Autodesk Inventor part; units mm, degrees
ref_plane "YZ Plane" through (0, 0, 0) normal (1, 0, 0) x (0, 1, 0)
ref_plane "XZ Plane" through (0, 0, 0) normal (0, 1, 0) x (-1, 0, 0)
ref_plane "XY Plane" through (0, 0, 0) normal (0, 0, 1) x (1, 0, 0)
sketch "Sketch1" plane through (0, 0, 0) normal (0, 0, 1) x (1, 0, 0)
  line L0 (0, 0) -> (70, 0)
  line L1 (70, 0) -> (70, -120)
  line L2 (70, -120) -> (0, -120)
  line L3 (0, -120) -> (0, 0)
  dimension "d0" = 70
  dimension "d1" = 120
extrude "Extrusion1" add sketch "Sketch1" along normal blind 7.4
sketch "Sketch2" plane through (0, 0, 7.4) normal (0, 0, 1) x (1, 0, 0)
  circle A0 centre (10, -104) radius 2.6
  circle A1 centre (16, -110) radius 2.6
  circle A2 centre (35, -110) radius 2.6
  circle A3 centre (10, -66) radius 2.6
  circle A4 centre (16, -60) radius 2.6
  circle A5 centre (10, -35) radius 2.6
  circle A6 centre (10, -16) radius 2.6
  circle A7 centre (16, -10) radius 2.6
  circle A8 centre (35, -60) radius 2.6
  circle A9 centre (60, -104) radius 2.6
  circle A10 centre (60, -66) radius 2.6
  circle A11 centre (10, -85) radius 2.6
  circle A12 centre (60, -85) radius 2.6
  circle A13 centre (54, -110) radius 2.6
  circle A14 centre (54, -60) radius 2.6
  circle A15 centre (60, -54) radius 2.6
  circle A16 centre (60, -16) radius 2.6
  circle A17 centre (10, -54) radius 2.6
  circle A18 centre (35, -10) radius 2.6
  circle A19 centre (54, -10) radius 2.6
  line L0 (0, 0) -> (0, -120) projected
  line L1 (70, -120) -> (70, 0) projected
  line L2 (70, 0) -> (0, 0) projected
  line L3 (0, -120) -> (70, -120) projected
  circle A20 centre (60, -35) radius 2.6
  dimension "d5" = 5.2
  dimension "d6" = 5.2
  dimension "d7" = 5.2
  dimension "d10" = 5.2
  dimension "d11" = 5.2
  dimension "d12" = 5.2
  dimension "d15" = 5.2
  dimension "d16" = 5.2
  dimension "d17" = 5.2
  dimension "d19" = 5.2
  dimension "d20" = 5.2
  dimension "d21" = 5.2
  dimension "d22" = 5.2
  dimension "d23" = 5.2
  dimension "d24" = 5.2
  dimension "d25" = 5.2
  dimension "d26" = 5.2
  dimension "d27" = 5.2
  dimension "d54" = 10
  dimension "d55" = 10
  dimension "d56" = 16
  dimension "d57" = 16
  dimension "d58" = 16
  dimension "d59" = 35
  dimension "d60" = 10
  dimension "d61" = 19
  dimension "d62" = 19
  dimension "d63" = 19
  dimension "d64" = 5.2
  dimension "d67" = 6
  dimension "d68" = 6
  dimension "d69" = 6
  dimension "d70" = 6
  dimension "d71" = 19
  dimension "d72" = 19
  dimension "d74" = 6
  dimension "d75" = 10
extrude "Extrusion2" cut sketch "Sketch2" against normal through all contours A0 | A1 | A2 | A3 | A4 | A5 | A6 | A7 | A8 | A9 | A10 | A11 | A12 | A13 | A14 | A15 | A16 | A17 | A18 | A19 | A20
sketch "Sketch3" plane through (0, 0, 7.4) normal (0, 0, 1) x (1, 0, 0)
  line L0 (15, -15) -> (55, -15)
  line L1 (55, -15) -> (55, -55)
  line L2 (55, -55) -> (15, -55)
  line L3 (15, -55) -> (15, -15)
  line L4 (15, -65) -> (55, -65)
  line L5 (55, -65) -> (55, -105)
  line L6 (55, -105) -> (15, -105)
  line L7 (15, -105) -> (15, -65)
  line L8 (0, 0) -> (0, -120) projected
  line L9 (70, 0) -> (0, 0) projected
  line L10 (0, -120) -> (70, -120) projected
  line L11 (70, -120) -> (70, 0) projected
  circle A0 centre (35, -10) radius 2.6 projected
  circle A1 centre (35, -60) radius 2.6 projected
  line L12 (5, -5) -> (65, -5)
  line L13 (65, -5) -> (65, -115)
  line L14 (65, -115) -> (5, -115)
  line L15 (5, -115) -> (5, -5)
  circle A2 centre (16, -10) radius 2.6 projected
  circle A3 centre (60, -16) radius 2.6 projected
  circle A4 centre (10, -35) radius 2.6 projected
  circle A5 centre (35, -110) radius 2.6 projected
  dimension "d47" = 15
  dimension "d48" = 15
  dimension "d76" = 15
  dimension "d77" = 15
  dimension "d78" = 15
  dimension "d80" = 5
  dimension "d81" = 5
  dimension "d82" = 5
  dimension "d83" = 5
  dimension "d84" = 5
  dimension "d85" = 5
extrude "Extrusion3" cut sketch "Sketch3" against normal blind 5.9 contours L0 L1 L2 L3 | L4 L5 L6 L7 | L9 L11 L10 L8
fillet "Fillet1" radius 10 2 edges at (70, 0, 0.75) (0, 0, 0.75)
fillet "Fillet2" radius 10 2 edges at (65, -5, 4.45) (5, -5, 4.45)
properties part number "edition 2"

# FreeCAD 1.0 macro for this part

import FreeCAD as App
import Part
import Sketcher
from FreeCAD import Vector


def edges_at(feature, points):
    """Names of the edges that pass closest to the given points."""
    edges = feature.Shape.Edges
    near = lambda p: min(range(len(edges)), key=lambda i: edges[i].distToShape(Part.Vertex(*p))[0])
    return sorted({f"Edge{near(p) + 1}" for p in points})

doc = App.newDocument("Part")
params = doc.addObject("Spreadsheet::Sheet", "Params")
for row, (alias, value) in enumerate([
    ("sketch1_width", "70 mm"),
    ("sketch1_height", "120 mm"),
    ("pad1_length", "7.4 mm"),
    ("sketch2_diameter", "5.2 mm"),
    ("sketch3_width", "40 mm"),
    ("sketch3_height", "120 mm"),
    ("pocket2_length", "5.9 mm"),
    ("fillet_radius", "10 mm"),
    ("fillet2_radius", "10 mm"),
], start=1):
    params.set(f"A{row}", alias)
    params.set(f"B{row}", "=" + value)
    params.setAlias(f"B{row}", alias)

body = doc.addObject("PartDesign::Body", "Body")

sketch1 = body.newObject("Sketcher::SketchObject", "Sketch")
sketch1.AttachmentSupport = (doc.getObject("XY_Plane"), [""])
sketch1.MapMode = "FlatFace"
sketch1.addGeometry(Part.LineSegment(Vector(70, 0, 0), Vector(0, 0, 0)), False)
sketch1.addGeometry(Part.LineSegment(Vector(0, 0, 0), Vector(0, -120, 0)), False)
sketch1.addGeometry(Part.LineSegment(Vector(0, -120, 0), Vector(70, -120, 0)), False)
sketch1.addGeometry(Part.LineSegment(Vector(70, -120, 0), Vector(70, 0, 0)), False)
sketch1.addConstraint(Sketcher.Constraint("Coincident", 0, 2, 1, 1))
sketch1.addConstraint(Sketcher.Constraint("Coincident", 1, 2, 2, 1))
sketch1.addConstraint(Sketcher.Constraint("Coincident", 2, 2, 3, 1))
sketch1.addConstraint(Sketcher.Constraint("Coincident", 3, 2, 0, 1))
sketch1.addConstraint(Sketcher.Constraint("Horizontal", 0))
sketch1.addConstraint(Sketcher.Constraint("Vertical", 1))
sketch1.addConstraint(Sketcher.Constraint("Horizontal", 2))
sketch1.addConstraint(Sketcher.Constraint("Vertical", 3))
sketch1.addConstraint(Sketcher.Constraint("Coincident", 0, 2, -1, 1))
sketch1.addConstraint(Sketcher.Constraint("DistanceX", 0, 2, 0, 1, 70.0))
sketch1.addConstraint(Sketcher.Constraint("DistanceY", 1, 2, 1, 1, 120.0))
sketch1.setExpression("Constraints[9]", "Params.sketch1_width")
sketch1.setExpression("Constraints[10]", "Params.sketch1_height")
pad1 = body.newObject("PartDesign::Pad", "Pad")
pad1.Profile = sketch1
pad1.setExpression("Length", "Params.pad1_length")

sketch2 = body.newObject("Sketcher::SketchObject", "Sketch001")
sketch2.AttachmentSupport = (doc.getObject("XY_Plane"), [""])
sketch2.MapMode = "FlatFace"
sketch2.AttachmentOffset = App.Placement(Vector(0, 0, 7.4), App.Rotation())
sketch2.addGeometry(Part.Circle(Vector(10, -104, 0), Vector(0, 0, 1), 2.6), False)
sketch2.addGeometry(Part.Circle(Vector(16, -110, 0), Vector(0, 0, 1), 2.6), False)
sketch2.addGeometry(Part.Circle(Vector(35, -110, 0), Vector(0, 0, 1), 2.6), False)
sketch2.addGeometry(Part.Circle(Vector(10, -66, 0), Vector(0, 0, 1), 2.6), False)
sketch2.addGeometry(Part.Circle(Vector(16, -60, 0), Vector(0, 0, 1), 2.6), False)
sketch2.addGeometry(Part.Circle(Vector(10, -35, 0), Vector(0, 0, 1), 2.6), False)
sketch2.addGeometry(Part.Circle(Vector(10, -16, 0), Vector(0, 0, 1), 2.6), False)
sketch2.addGeometry(Part.Circle(Vector(16, -10, 0), Vector(0, 0, 1), 2.6), False)
sketch2.addGeometry(Part.Circle(Vector(35, -60, 0), Vector(0, 0, 1), 2.6), False)
sketch2.addGeometry(Part.Circle(Vector(60, -104, 0), Vector(0, 0, 1), 2.6), False)
sketch2.addGeometry(Part.Circle(Vector(60, -66, 0), Vector(0, 0, 1), 2.6), False)
sketch2.addGeometry(Part.Circle(Vector(10, -85, 0), Vector(0, 0, 1), 2.6), False)
sketch2.addGeometry(Part.Circle(Vector(60, -85, 0), Vector(0, 0, 1), 2.6), False)
sketch2.addGeometry(Part.Circle(Vector(54, -110, 0), Vector(0, 0, 1), 2.6), False)
sketch2.addGeometry(Part.Circle(Vector(54, -60, 0), Vector(0, 0, 1), 2.6), False)
sketch2.addGeometry(Part.Circle(Vector(60, -54, 0), Vector(0, 0, 1), 2.6), False)
sketch2.addGeometry(Part.Circle(Vector(60, -16, 0), Vector(0, 0, 1), 2.6), False)
sketch2.addGeometry(Part.Circle(Vector(10, -54, 0), Vector(0, 0, 1), 2.6), False)
sketch2.addGeometry(Part.Circle(Vector(35, -10, 0), Vector(0, 0, 1), 2.6), False)
sketch2.addGeometry(Part.Circle(Vector(54, -10, 0), Vector(0, 0, 1), 2.6), False)
sketch2.addGeometry(Part.Circle(Vector(60, -35, 0), Vector(0, 0, 1), 2.6), False)
sketch2.addConstraint(Sketcher.Constraint("Equal", 0, 1))
sketch2.addConstraint(Sketcher.Constraint("Equal", 1, 2))
sketch2.addConstraint(Sketcher.Constraint("Equal", 2, 3))
sketch2.addConstraint(Sketcher.Constraint("Equal", 3, 4))
sketch2.addConstraint(Sketcher.Constraint("Equal", 4, 5))
sketch2.addConstraint(Sketcher.Constraint("Equal", 5, 6))
sketch2.addConstraint(Sketcher.Constraint("Equal", 6, 7))
sketch2.addConstraint(Sketcher.Constraint("Equal", 7, 8))
sketch2.addConstraint(Sketcher.Constraint("Equal", 8, 9))
sketch2.addConstraint(Sketcher.Constraint("Equal", 9, 10))
sketch2.addConstraint(Sketcher.Constraint("Equal", 10, 11))
sketch2.addConstraint(Sketcher.Constraint("Equal", 11, 12))
sketch2.addConstraint(Sketcher.Constraint("Equal", 12, 13))
sketch2.addConstraint(Sketcher.Constraint("Equal", 13, 14))
sketch2.addConstraint(Sketcher.Constraint("Equal", 14, 15))
sketch2.addConstraint(Sketcher.Constraint("Equal", 15, 16))
sketch2.addConstraint(Sketcher.Constraint("Equal", 16, 17))
sketch2.addConstraint(Sketcher.Constraint("Equal", 17, 18))
sketch2.addConstraint(Sketcher.Constraint("Equal", 18, 19))
sketch2.addConstraint(Sketcher.Constraint("Equal", 19, 20))
sketch2.addConstraint(Sketcher.Constraint("Horizontal", 1, 3, 2, 3))
sketch2.addConstraint(Sketcher.Constraint("Horizontal", 4, 3, 8, 3))
sketch2.addConstraint(Sketcher.Constraint("Horizontal", 0, 3, 9, 3))
sketch2.addConstraint(Sketcher.Constraint("Horizontal", 3, 3, 10, 3))
sketch2.addConstraint(Sketcher.Constraint("Horizontal", 11, 3, 12, 3))
sketch2.addConstraint(Sketcher.Constraint("Horizontal", 2, 3, 13, 3))
sketch2.addConstraint(Sketcher.Constraint("Horizontal", 8, 3, 14, 3))
sketch2.addConstraint(Sketcher.Constraint("Horizontal", 6, 3, 16, 3))
sketch2.addConstraint(Sketcher.Constraint("Horizontal", 15, 3, 17, 3))
sketch2.addConstraint(Sketcher.Constraint("Horizontal", 7, 3, 18, 3))
sketch2.addConstraint(Sketcher.Constraint("Horizontal", 18, 3, 19, 3))
sketch2.addConstraint(Sketcher.Constraint("Horizontal", 5, 3, 20, 3))
sketch2.addConstraint(Sketcher.Constraint("Vertical", 0, 3, 3, 3))
sketch2.addConstraint(Sketcher.Constraint("Vertical", 1, 3, 4, 3))
sketch2.addConstraint(Sketcher.Constraint("Vertical", 3, 3, 5, 3))
sketch2.addConstraint(Sketcher.Constraint("Vertical", 5, 3, 6, 3))
sketch2.addConstraint(Sketcher.Constraint("Vertical", 4, 3, 7, 3))
sketch2.addConstraint(Sketcher.Constraint("Vertical", 2, 3, 8, 3))
sketch2.addConstraint(Sketcher.Constraint("Vertical", 9, 3, 10, 3))
sketch2.addConstraint(Sketcher.Constraint("Vertical", 6, 3, 11, 3))
sketch2.addConstraint(Sketcher.Constraint("Vertical", 10, 3, 12, 3))
sketch2.addConstraint(Sketcher.Constraint("Vertical", 13, 3, 14, 3))
sketch2.addConstraint(Sketcher.Constraint("Vertical", 12, 3, 15, 3))
sketch2.addConstraint(Sketcher.Constraint("Vertical", 15, 3, 16, 3))
sketch2.addConstraint(Sketcher.Constraint("Vertical", 11, 3, 17, 3))
sketch2.addConstraint(Sketcher.Constraint("Vertical", 8, 3, 18, 3))
sketch2.addConstraint(Sketcher.Constraint("Vertical", 14, 3, 19, 3))
sketch2.addConstraint(Sketcher.Constraint("Vertical", 16, 3, 20, 3))
sketch2.addConstraint(Sketcher.Constraint("Diameter", 0, 5.2))
sketch2.addConstraint(Sketcher.Constraint("DistanceX", -1, 1, 0, 3, 10.0))
sketch2.addConstraint(Sketcher.Constraint("DistanceX", -1, 1, 1, 3, 16.0))
sketch2.addConstraint(Sketcher.Constraint("DistanceX", -1, 1, 2, 3, 35.0))
sketch2.addConstraint(Sketcher.Constraint("DistanceY", 5, 3, -1, 1, 35.0))
sketch2.addConstraint(Sketcher.Constraint("DistanceY", 6, 3, -1, 1, 16.0))
sketch2.addConstraint(Sketcher.Constraint("DistanceY", 7, 3, -1, 1, 10.0))
sketch2.addConstraint(Sketcher.Constraint("DistanceY", 1, 3, 0, 3, 6.0))
sketch2.addConstraint(Sketcher.Constraint("DistanceY", 3, 3, 4, 3, 6.0))
sketch2.addConstraint(Sketcher.Constraint("DistanceY", 0, 3, 11, 3, 19.0))
sketch2.addConstraint(Sketcher.Constraint("DistanceY", 11, 3, 3, 3, 19.0))
sketch2.addConstraint(Sketcher.Constraint("DistanceX", 13, 3, 9, 3, 6.0))
sketch2.addConstraint(Sketcher.Constraint("DistanceX", 2, 3, 13, 3, 19.0))
sketch2.addConstraint(Sketcher.Constraint("DistanceY", 14, 3, 15, 3, 6.0))
sketch2.addConstraint(Sketcher.Constraint("DistanceY", 17, 3, 5, 3, 19.0))
sketch2.setExpression("Constraints[48]", "Params.sketch2_diameter")
pocket1 = body.newObject("PartDesign::Pocket", "Pocket")
pocket1.Profile = sketch2
pocket1.Type = "ThroughAll"

sketch3 = body.newObject("Sketcher::SketchObject", "Sketch002")
sketch3.AttachmentSupport = (doc.getObject("XY_Plane"), [""])
sketch3.MapMode = "FlatFace"
sketch3.AttachmentOffset = App.Placement(Vector(0, 0, 7.4), App.Rotation())
sketch3.addGeometry(Part.LineSegment(Vector(55, -15, 0), Vector(15, -15, 0)), False)
sketch3.addGeometry(Part.LineSegment(Vector(15, -15, 0), Vector(15, -55, 0)), False)
sketch3.addGeometry(Part.LineSegment(Vector(15, -55, 0), Vector(55, -55, 0)), False)
sketch3.addGeometry(Part.LineSegment(Vector(55, -55, 0), Vector(55, -15, 0)), False)
sketch3.addGeometry(Part.LineSegment(Vector(55, -65, 0), Vector(15, -65, 0)), False)
sketch3.addGeometry(Part.LineSegment(Vector(15, -65, 0), Vector(15, -105, 0)), False)
sketch3.addGeometry(Part.LineSegment(Vector(15, -105, 0), Vector(55, -105, 0)), False)
sketch3.addGeometry(Part.LineSegment(Vector(55, -105, 0), Vector(55, -65, 0)), False)
sketch3.addGeometry(Part.LineSegment(Vector(70, 0, 0), Vector(0, 0, 0)), False)
sketch3.addGeometry(Part.LineSegment(Vector(0, 0, 0), Vector(0, -120, 0)), False)
sketch3.addGeometry(Part.LineSegment(Vector(0, -120, 0), Vector(70, -120, 0)), False)
sketch3.addGeometry(Part.LineSegment(Vector(70, -120, 0), Vector(70, 0, 0)), False)
sketch3.addGeometry(Part.LineSegment(Vector(5, -115, 0), Vector(5, -5, 0)), False)
sketch3.addGeometry(Part.LineSegment(Vector(5, -5, 0), Vector(65, -5, 0)), False)
sketch3.addGeometry(Part.LineSegment(Vector(65, -5, 0), Vector(65, -115, 0)), False)
sketch3.addGeometry(Part.LineSegment(Vector(65, -115, 0), Vector(5, -115, 0)), False)
sketch3.addConstraint(Sketcher.Constraint("Coincident", 0, 2, 1, 1))
sketch3.addConstraint(Sketcher.Constraint("Coincident", 1, 2, 2, 1))
sketch3.addConstraint(Sketcher.Constraint("Coincident", 2, 2, 3, 1))
sketch3.addConstraint(Sketcher.Constraint("Coincident", 3, 2, 0, 1))
sketch3.addConstraint(Sketcher.Constraint("Coincident", 4, 2, 5, 1))
sketch3.addConstraint(Sketcher.Constraint("Coincident", 5, 2, 6, 1))
sketch3.addConstraint(Sketcher.Constraint("Coincident", 6, 2, 7, 1))
sketch3.addConstraint(Sketcher.Constraint("Coincident", 7, 2, 4, 1))
sketch3.addConstraint(Sketcher.Constraint("Coincident", 8, 2, 9, 1))
sketch3.addConstraint(Sketcher.Constraint("Coincident", 9, 2, 10, 1))
sketch3.addConstraint(Sketcher.Constraint("Coincident", 10, 2, 11, 1))
sketch3.addConstraint(Sketcher.Constraint("Coincident", 11, 2, 8, 1))
sketch3.addConstraint(Sketcher.Constraint("Coincident", 12, 2, 13, 1))
sketch3.addConstraint(Sketcher.Constraint("Coincident", 13, 2, 14, 1))
sketch3.addConstraint(Sketcher.Constraint("Coincident", 14, 2, 15, 1))
sketch3.addConstraint(Sketcher.Constraint("Coincident", 15, 2, 12, 1))
sketch3.addConstraint(Sketcher.Constraint("Horizontal", 0))
sketch3.addConstraint(Sketcher.Constraint("Vertical", 1))
sketch3.addConstraint(Sketcher.Constraint("Horizontal", 2))
sketch3.addConstraint(Sketcher.Constraint("Vertical", 3))
sketch3.addConstraint(Sketcher.Constraint("Horizontal", 4))
sketch3.addConstraint(Sketcher.Constraint("Vertical", 5))
sketch3.addConstraint(Sketcher.Constraint("Horizontal", 6))
sketch3.addConstraint(Sketcher.Constraint("Vertical", 7))
sketch3.addConstraint(Sketcher.Constraint("Horizontal", 8))
sketch3.addConstraint(Sketcher.Constraint("Vertical", 9))
sketch3.addConstraint(Sketcher.Constraint("Horizontal", 10))
sketch3.addConstraint(Sketcher.Constraint("Vertical", 11))
sketch3.addConstraint(Sketcher.Constraint("Vertical", 12))
sketch3.addConstraint(Sketcher.Constraint("Horizontal", 13))
sketch3.addConstraint(Sketcher.Constraint("Vertical", 14))
sketch3.addConstraint(Sketcher.Constraint("Horizontal", 15))
sketch3.addConstraint(Sketcher.Constraint("Coincident", 8, 2, -1, 1))
sketch3.addConstraint(Sketcher.Constraint("Vertical", 1, 2, 4, 2))
sketch3.addConstraint(Sketcher.Constraint("Vertical", 3, 2, 6, 2))
sketch3.addConstraint(Sketcher.Constraint("Equal", 6, 1))
sketch3.addConstraint(Sketcher.Constraint("Equal", 3, 5))
sketch3.addConstraint(Sketcher.Constraint("DistanceX", -1, 1, 0, 2, 15.0))
sketch3.addConstraint(Sketcher.Constraint("DistanceY", 0, 2, -1, 1, 15.0))
sketch3.addConstraint(Sketcher.Constraint("DistanceX", -1, 1, 12, 2, 5.0))
sketch3.addConstraint(Sketcher.Constraint("DistanceY", 12, 2, -1, 1, 5.0))
sketch3.addConstraint(Sketcher.Constraint("DistanceY", 9, 2, 5, 2, 15.0))
sketch3.addConstraint(Sketcher.Constraint("DistanceX", 6, 2, 10, 2, 15.0))
sketch3.addConstraint(Sketcher.Constraint("DistanceX", 13, 2, 11, 2, 5.0))
sketch3.addConstraint(Sketcher.Constraint("DistanceY", 10, 2, 14, 2, 5.0))
sketch3.addConstraint(Sketcher.Constraint("DistanceX", 0, 2, 0, 1, 40.0))
sketch3.addConstraint(Sketcher.Constraint("DistanceY", 9, 2, 9, 1, 120.0))
sketch3.setExpression("Constraints[45]", "Params.sketch3_width")
sketch3.setExpression("Constraints[46]", "Params.sketch3_height")
pocket2 = body.newObject("PartDesign::Pocket", "Pocket001")
pocket2.Profile = sketch3
pocket2.setExpression("Length", "Params.pocket2_length")
doc.recompute()

fillet = body.newObject("PartDesign::Fillet", "Fillet")
fillet.Base = (pocket2, edges_at(pocket2, [(70, 0, 0.75), (0, 0, 0.75)]))
fillet.setExpression("Radius", "Params.fillet_radius")
doc.recompute()

fillet2 = body.newObject("PartDesign::Fillet", "Fillet001")
fillet2.Base = (fillet, edges_at(fillet, [(65, -5, 4.45), (5, -5, 4.45)]))
fillet2.setExpression("Radius", "Params.fillet2_radius")

doc.recompute()
